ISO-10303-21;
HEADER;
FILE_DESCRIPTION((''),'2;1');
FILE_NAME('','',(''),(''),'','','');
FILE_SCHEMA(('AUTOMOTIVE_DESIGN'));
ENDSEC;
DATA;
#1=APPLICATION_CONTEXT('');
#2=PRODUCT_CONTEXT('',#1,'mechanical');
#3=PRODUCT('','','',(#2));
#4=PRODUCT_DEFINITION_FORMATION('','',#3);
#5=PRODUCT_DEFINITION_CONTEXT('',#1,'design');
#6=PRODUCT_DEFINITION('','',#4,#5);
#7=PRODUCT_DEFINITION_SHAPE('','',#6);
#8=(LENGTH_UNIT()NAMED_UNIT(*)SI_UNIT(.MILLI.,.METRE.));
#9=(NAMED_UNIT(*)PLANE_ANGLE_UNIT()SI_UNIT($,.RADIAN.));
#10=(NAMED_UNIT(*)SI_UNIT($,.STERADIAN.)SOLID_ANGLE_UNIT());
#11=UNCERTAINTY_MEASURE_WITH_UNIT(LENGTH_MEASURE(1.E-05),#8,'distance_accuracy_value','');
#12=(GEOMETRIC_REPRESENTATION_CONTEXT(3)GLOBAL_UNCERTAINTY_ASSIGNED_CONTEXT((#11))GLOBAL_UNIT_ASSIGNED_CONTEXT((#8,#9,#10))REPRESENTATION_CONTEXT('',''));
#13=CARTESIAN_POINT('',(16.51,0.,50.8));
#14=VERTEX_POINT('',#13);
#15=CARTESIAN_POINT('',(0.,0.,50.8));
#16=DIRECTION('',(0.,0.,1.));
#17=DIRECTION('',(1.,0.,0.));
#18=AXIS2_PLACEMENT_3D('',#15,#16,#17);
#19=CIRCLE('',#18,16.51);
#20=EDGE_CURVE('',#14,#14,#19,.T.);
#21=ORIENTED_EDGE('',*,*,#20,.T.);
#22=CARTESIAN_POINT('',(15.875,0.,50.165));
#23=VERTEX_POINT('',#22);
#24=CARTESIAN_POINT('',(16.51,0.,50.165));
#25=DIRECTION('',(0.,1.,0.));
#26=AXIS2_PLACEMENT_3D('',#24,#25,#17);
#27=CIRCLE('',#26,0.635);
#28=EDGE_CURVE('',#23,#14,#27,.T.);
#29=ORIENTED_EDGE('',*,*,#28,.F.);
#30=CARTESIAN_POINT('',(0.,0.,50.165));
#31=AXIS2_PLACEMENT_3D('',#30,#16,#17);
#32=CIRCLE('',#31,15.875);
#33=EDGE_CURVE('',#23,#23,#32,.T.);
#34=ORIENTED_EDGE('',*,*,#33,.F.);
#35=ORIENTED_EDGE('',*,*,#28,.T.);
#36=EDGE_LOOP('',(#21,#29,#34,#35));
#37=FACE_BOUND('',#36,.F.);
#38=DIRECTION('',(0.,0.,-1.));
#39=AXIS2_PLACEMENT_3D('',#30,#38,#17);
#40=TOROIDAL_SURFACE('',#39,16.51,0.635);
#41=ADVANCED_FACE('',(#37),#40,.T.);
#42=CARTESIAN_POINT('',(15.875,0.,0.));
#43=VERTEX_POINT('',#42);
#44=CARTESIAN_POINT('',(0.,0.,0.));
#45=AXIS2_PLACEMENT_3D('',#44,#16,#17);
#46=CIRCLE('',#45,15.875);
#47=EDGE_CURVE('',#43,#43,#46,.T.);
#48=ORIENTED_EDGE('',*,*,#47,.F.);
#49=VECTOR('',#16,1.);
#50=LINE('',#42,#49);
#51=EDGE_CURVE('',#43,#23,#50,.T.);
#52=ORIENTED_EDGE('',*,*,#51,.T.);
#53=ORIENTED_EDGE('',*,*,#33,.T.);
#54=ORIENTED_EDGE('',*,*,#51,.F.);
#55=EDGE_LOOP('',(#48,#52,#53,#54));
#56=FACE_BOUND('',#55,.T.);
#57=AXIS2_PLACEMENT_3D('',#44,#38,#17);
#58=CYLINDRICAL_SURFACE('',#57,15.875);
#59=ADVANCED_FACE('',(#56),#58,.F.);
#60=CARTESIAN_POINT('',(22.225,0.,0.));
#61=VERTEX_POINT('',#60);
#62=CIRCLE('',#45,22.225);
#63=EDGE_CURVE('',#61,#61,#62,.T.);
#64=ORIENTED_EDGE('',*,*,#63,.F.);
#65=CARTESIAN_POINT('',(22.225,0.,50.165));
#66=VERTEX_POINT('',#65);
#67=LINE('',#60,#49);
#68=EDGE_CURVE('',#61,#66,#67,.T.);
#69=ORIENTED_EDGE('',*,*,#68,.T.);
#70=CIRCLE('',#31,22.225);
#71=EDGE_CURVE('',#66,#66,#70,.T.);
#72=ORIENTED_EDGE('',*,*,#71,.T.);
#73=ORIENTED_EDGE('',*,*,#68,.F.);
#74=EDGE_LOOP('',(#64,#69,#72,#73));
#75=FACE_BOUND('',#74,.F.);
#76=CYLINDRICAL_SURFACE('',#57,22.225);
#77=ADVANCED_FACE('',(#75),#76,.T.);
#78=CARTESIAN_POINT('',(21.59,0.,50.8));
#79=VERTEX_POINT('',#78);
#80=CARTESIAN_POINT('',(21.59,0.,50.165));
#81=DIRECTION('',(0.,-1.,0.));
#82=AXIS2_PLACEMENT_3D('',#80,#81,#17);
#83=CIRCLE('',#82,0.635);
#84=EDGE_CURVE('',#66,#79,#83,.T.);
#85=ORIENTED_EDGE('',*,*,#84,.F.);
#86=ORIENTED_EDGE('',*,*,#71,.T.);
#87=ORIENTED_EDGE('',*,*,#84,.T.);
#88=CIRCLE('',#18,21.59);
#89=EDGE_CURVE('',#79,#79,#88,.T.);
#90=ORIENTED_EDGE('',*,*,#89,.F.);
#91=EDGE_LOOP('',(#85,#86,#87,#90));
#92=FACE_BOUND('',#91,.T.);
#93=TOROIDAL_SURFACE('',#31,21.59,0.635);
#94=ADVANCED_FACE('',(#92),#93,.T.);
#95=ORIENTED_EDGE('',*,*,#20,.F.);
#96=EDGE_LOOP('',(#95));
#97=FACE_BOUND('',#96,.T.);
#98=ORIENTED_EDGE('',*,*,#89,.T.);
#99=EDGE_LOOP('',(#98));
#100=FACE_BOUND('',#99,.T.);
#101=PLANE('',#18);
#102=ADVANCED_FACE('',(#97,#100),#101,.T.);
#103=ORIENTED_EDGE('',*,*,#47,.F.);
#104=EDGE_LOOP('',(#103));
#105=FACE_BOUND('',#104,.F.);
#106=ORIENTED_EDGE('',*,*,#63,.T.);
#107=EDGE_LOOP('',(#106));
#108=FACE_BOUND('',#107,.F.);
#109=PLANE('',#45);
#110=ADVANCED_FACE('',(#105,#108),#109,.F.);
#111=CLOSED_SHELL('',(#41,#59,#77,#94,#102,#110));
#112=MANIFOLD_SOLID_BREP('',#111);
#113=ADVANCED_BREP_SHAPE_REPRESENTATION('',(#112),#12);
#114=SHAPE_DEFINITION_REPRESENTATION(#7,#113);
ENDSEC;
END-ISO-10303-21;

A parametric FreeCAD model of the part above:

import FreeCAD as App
import Part
import Sketcher

V = App.Vector
Q = App.Units.Quantity


def edges_at(feature, points):
    """Names of the edges that pass closest to the given points."""
    edges = feature.Shape.Edges
    near = lambda p: min(range(len(edges)), key=lambda i: edges[i].distToShape(Part.Vertex(*p))[0])
    return sorted({f"Edge{near(p) + 1}" for p in points})


def faces_at(feature, points):
    """Names of the faces that lie closest to the given points."""
    faces = feature.Shape.Faces
    near = lambda p: min(range(len(faces)), key=lambda i: faces[i].distToShape(Part.Vertex(*p))[0])
    return sorted({f"Face{near(p) + 1}" for p in points})

doc = App.newDocument("Part")
body = doc.addObject("PartDesign::Body", "Body")

sketch1 = body.newObject("Sketcher::SketchObject", "Sketch")
sketch1.AttachmentSupport = (doc.getObject("XY_Plane"), [""])
sketch1.MapMode = "FlatFace"
sketch1.addGeometry(Part.Circle(V(0, 0, 0), V(0, 0, 1), 22), False)
sketch1.addConstraint([
    Sketcher.Constraint("Coincident", 0, 3, -1, 1),
    Sketcher.Constraint("Diameter", 0, Q("1.75 in")),
])
pad1 = body.newObject("PartDesign::Pad", "Pad")
pad1.Profile = sketch1
pad1.Length = Q("2 in")
doc.recompute()

thickness = body.newObject("PartDesign::Thickness", "Thickness")
thickness.Base = (pad1, faces_at(pad1, [(0, 0, 50.8), (0, 0, 0)]))
thickness.Value = Q("0.25 in")
thickness.Reversed = True
thickness.Join = "Arc"
doc.recompute()

fillet = body.newObject("PartDesign::Fillet", "Fillet")
fillet.Base = (thickness, edges_at(thickness, [(-22.225, 0, 50.8), (-15.875, 0, 50.8)]))
fillet.Radius = Q("0.025 in")

doc.recompute()
